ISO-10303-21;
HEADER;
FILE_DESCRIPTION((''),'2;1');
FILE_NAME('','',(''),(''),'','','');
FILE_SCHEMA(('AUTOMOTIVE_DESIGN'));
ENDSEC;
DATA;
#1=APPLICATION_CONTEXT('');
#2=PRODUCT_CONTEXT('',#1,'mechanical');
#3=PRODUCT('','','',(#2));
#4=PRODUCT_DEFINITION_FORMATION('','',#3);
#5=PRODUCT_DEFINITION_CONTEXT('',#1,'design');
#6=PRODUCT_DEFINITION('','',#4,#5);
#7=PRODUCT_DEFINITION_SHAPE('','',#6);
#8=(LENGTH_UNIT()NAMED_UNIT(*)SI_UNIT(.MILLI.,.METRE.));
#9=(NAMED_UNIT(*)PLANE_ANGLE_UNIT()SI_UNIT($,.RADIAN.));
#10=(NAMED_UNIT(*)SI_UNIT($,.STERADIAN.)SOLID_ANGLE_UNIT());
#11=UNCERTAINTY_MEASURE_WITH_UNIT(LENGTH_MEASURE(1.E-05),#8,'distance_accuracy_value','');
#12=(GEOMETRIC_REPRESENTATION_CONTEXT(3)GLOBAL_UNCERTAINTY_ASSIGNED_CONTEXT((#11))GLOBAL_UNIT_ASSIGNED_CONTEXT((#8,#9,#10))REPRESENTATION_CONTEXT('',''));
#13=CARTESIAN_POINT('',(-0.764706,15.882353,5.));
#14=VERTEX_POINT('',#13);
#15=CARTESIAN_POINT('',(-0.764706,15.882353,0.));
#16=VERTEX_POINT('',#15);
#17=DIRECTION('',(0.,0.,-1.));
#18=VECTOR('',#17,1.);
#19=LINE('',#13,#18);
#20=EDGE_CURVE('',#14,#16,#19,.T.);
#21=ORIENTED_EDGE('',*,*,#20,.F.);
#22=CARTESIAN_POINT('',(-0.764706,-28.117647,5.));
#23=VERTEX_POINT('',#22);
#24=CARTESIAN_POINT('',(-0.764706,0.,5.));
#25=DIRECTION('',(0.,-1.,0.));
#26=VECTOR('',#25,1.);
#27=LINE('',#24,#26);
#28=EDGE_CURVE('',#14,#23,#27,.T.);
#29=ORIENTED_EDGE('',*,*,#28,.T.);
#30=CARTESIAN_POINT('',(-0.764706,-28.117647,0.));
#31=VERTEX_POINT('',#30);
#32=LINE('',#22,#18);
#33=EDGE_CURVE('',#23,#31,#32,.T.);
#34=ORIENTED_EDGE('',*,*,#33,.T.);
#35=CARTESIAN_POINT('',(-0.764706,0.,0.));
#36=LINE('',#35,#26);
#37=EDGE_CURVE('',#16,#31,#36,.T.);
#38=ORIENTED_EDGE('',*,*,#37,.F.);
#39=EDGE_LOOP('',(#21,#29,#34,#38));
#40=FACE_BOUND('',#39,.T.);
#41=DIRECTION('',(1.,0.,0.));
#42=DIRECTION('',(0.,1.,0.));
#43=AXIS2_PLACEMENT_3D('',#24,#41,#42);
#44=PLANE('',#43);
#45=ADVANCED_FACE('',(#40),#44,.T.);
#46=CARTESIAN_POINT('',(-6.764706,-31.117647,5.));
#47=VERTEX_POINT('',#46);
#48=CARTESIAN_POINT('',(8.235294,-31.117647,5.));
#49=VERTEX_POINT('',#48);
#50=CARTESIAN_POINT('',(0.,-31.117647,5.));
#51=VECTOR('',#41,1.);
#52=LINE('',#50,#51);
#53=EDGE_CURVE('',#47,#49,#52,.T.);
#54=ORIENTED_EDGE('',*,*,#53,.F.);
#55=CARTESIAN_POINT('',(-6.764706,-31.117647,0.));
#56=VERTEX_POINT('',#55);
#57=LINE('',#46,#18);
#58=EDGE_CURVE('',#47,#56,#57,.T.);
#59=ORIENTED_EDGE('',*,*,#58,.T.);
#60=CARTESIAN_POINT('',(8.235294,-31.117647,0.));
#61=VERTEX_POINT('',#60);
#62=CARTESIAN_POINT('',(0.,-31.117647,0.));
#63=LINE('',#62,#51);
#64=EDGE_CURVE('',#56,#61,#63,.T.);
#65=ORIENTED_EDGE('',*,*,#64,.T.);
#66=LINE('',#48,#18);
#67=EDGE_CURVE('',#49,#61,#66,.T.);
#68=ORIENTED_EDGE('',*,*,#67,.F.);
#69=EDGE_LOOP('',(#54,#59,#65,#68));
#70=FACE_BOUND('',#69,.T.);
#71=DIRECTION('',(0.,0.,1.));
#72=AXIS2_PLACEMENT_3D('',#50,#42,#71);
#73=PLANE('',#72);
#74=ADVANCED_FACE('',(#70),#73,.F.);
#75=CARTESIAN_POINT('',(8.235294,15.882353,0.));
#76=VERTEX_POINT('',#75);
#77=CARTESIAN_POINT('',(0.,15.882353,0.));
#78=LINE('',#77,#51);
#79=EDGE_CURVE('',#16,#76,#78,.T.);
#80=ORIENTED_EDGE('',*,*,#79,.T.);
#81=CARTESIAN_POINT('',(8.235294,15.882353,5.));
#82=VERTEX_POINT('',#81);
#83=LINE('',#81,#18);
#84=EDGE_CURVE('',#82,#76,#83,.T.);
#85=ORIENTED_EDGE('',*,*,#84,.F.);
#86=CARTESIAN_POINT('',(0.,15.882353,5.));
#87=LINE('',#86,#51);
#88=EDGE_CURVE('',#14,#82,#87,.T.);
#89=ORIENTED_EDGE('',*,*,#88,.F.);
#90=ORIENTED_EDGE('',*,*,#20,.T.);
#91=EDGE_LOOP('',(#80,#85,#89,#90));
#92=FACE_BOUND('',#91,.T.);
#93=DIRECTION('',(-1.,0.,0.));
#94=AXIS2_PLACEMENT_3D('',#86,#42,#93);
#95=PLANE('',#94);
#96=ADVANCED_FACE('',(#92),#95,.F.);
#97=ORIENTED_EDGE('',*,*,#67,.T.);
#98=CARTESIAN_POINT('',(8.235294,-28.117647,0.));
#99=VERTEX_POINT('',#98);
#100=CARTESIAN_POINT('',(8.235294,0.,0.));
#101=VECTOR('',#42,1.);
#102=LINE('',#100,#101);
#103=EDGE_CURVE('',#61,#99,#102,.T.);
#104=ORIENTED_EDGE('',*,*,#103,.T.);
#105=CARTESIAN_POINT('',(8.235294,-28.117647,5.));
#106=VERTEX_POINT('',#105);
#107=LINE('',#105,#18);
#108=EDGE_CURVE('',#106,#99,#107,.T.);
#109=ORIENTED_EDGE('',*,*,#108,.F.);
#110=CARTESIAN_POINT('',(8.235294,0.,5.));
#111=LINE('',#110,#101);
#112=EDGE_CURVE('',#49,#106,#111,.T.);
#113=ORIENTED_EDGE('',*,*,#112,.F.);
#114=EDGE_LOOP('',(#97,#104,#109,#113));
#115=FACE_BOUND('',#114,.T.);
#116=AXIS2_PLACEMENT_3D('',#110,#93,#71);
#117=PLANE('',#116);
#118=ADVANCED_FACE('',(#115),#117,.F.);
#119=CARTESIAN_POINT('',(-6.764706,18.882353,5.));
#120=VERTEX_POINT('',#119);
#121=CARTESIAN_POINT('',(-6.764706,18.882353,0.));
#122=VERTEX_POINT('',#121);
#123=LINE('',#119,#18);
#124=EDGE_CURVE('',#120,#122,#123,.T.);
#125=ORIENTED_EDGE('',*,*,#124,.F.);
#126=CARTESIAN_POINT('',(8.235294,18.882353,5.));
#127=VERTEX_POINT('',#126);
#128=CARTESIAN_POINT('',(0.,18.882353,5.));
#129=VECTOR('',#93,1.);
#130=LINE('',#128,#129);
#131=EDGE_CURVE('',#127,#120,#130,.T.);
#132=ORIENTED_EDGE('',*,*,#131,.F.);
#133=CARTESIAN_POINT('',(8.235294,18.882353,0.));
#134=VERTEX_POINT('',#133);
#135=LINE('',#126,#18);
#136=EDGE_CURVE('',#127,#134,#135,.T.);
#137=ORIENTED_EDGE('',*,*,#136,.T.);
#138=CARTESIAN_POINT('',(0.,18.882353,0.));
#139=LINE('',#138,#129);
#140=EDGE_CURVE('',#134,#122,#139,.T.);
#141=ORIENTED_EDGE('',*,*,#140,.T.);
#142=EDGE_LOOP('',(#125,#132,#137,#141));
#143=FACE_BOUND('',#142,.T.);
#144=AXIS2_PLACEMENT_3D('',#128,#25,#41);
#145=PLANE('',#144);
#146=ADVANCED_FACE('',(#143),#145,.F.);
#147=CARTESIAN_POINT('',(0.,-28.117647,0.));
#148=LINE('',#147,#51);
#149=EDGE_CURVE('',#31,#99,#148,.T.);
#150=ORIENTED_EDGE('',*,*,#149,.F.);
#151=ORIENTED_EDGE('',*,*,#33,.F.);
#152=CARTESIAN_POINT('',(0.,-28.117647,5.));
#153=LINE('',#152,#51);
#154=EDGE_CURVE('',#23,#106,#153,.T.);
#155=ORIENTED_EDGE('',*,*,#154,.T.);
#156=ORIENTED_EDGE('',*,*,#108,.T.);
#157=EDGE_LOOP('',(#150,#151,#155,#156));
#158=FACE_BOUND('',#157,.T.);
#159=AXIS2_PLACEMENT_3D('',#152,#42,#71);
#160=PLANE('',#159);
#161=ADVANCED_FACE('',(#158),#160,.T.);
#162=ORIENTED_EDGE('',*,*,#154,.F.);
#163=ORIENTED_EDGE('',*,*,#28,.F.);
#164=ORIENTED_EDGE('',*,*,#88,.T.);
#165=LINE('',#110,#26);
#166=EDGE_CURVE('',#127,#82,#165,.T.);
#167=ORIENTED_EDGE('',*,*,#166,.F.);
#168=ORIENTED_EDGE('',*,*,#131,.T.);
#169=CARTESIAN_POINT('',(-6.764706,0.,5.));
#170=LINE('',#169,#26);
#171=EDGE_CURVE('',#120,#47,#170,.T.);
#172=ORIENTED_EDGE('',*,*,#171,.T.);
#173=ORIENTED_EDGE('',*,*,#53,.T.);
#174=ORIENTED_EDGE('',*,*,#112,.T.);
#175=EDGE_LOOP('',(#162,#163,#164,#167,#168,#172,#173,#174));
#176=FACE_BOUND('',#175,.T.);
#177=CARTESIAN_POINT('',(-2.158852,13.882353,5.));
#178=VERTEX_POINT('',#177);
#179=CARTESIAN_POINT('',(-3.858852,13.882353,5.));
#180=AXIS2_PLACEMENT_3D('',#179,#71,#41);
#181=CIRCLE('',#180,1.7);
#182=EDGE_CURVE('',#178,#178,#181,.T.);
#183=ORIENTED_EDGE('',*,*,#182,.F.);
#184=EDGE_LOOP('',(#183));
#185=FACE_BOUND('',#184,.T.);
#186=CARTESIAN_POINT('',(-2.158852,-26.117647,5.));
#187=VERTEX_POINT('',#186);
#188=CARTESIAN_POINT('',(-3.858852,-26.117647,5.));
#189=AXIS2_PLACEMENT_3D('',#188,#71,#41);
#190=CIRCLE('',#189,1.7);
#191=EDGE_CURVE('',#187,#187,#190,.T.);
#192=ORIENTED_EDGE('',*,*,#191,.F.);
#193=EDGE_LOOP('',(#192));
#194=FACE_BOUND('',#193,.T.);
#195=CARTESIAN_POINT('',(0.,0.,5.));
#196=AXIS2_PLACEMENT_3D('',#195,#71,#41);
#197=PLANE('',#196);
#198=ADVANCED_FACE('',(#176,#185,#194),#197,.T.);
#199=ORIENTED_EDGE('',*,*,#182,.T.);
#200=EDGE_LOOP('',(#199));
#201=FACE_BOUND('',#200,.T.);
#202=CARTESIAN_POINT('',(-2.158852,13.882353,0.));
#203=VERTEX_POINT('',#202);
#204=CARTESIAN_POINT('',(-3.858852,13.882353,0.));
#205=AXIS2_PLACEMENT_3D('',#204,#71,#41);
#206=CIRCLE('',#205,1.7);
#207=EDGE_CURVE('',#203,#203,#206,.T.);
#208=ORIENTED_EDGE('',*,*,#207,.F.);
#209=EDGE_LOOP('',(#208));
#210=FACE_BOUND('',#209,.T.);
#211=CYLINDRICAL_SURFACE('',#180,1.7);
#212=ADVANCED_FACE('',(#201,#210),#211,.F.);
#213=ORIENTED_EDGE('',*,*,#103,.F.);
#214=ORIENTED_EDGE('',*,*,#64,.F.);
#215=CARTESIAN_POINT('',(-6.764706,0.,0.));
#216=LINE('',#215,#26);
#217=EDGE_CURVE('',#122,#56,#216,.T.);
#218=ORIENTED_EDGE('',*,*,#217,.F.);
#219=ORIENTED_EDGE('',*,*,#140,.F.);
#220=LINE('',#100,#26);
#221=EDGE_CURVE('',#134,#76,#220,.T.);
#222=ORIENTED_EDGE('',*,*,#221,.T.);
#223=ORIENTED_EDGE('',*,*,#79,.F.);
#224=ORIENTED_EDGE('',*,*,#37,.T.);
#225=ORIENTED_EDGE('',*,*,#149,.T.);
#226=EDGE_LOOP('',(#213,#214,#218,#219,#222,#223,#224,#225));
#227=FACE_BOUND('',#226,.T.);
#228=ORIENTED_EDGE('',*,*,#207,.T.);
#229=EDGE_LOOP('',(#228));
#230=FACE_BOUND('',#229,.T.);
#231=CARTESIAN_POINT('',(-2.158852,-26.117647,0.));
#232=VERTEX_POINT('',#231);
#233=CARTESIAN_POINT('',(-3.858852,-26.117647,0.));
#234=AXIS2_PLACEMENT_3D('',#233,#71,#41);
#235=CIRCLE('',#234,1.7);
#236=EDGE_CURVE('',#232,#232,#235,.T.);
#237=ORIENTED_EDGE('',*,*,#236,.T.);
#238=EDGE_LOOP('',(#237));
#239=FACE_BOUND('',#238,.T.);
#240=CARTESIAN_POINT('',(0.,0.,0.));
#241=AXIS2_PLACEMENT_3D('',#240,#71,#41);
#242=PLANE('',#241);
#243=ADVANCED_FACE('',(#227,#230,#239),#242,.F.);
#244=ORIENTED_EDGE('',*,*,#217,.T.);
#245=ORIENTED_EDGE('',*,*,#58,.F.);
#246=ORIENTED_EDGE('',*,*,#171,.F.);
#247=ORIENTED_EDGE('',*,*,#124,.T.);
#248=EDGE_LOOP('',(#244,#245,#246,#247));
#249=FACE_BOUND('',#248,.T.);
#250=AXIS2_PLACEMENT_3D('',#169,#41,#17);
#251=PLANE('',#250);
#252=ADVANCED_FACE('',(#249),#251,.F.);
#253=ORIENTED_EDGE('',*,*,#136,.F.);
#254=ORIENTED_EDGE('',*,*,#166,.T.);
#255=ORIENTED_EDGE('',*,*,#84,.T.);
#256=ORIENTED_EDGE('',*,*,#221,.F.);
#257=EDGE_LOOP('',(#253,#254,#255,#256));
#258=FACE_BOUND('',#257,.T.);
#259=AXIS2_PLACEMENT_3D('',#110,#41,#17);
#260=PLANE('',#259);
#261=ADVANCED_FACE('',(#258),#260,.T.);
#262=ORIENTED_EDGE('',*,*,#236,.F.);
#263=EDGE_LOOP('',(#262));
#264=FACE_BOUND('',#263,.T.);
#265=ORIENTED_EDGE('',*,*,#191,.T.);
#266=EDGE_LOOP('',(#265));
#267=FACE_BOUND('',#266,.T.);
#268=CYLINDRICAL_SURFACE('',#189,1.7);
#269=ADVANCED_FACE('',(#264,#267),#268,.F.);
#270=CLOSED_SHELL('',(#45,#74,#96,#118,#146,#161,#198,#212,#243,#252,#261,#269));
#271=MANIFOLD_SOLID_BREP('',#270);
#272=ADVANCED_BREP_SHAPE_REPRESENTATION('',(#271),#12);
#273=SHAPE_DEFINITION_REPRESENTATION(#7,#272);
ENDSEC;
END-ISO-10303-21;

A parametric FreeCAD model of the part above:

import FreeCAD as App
import Part
import Sketcher
Q = App.Units.Quantity


def add_polygon(sketch, points):
    """Adds a closed chain of lines whose ends are joined by coincident constraints."""
    first, n = sketch.GeometryCount, len(points)
    for a, b in zip(points, points[1:] + points[:1]):
        sketch.addGeometry(Part.LineSegment(App.Vector(*a, 0), App.Vector(*b, 0)), False)
    for i in range(n):
        sketch.addConstraint(Sketcher.Constraint("Coincident", first + i, 2, first + (i + 1) % n, 1))

doc = App.newDocument("Part")
body = doc.addObject("PartDesign::Body", "Body")

# Sketch on XY plane
sketch1 = body.newObject("Sketcher::SketchObject", "Sketch")
sketch1.AttachmentSupport = (doc.getObject("XY_Plane"), [""])
sketch1.MapMode = "FlatFace"
add_polygon(sketch1, [(8.235294, 15.882353), (8.235294, 18.882353), (-6.764706, 18.882353), (-6.764706, -31.117647), (8.235294, -31.117647), (8.235294, -28.117647), (-0.764706, -28.117647), (-0.764706, 15.882353)])  # lines 0-7
sketch1.addConstraint([
    Sketcher.Constraint("Vertical", 0),
    Sketcher.Constraint("Horizontal", 1),
    Sketcher.Constraint("Vertical", 2),
    Sketcher.Constraint("Horizontal", 3),
    Sketcher.Constraint("Vertical", 4),
    Sketcher.Constraint("Horizontal", 5),
    Sketcher.Constraint("Vertical", 6),
    Sketcher.Constraint("Horizontal", 7),
    Sketcher.Constraint("Vertical", 0, 2, 3, 2),
    Sketcher.Constraint("Equal", 0, 4),
    Sketcher.Constraint("DistanceX", 1, 2, 1, 1, Q("15 mm")),
    Sketcher.Constraint("DistanceX", 5, 2, 5, 1, Q("9 mm")),
    Sketcher.Constraint("DistanceY", 0, 1, 0, 2, Q("3 mm")),
    Sketcher.Constraint("DistanceY", 2, 2, 2, 1, Q("50 mm")),
    Sketcher.Constraint("DistanceX", -1, 1, 0, 2, Q("8.235294 mm")),
    Sketcher.Constraint("DistanceY", -1, 1, 0, 2, Q("18.882353 mm")),
])
pad1 = body.newObject("PartDesign::Pad", "Pad")
pad1.Profile = sketch1
pad1.Length = 5

# Sketch on XY plane
sketch2 = body.newObject("Sketcher::SketchObject", "Sketch001")
sketch2.AttachmentSupport = (doc.getObject("XY_Plane"), [""])
sketch2.MapMode = "FlatFace"
sketch2.AttachmentOffset = App.Placement(App.Vector(0, 0, 5), App.Rotation())
sketch2.addGeometry([
    Part.Circle(App.Vector(-3.858852, 13.882353, 0), App.Vector(0, 0, 1), 1.7),
    Part.Circle(App.Vector(-3.858852, -26.117647, 0), App.Vector(0, 0, 1), 1.7),
], False)
sketch2.addConstraint([
    Sketcher.Constraint("Equal", 0, 1),
    Sketcher.Constraint("Vertical", 0, 3, 1, 3),
    Sketcher.Constraint("Diameter", 0, Q("3.4 mm")),
    Sketcher.Constraint("DistanceY", 1, 3, 0, 3, Q("40 mm")),
    Sketcher.Constraint("DistanceX", 0, 3, -1, 1, Q("3.858852 mm")),
    Sketcher.Constraint("DistanceY", -1, 1, 0, 3, Q("13.882353 mm")),
])
doc.recompute()
hole = body.newObject("PartDesign::Hole", "Hole")
hole.Profile = sketch2
hole.ThreadType = "None"
hole.Diameter = 3.4
hole.DepthType = "ThroughAll"

doc.recompute()
